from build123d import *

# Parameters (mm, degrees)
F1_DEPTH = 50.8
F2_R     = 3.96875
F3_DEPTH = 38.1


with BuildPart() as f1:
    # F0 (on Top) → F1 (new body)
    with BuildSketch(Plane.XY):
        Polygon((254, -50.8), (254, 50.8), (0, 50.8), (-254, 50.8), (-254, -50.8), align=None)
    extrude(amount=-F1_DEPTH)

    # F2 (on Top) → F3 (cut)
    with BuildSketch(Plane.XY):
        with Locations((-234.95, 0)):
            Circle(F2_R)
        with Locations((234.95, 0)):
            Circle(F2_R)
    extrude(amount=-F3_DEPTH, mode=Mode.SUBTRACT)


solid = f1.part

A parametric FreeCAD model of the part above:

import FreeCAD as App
import Part
import Sketcher

V = App.Vector
Q = App.Units.Quantity

doc = App.newDocument("Part")
body = doc.addObject("PartDesign::Body", "Body")

# Sketch on XY plane
sketch1 = doc.addObject("Sketcher::SketchObject", "Sketch")
body.addObject(sketch1)
sketch1.AttachmentSupport = (doc.XY_Plane, [""])
sketch1.MapMode = "FlatFace"
sketch1.addGeometry(Part.LineSegment(V(254, -51, 0), V(254, 51, 0)), False)
sketch1.addGeometry(Part.LineSegment(V(254, 51, 0), V(-254, 51, 0)), False)
sketch1.addGeometry(Part.LineSegment(V(-254, 51, 0), V(-254, -51, 0)), False)
sketch1.addGeometry(Part.LineSegment(V(-254, -51, 0), V(254, -51, 0)), False)
sketch1.addConstraint(Sketcher.Constraint("Coincident", 0, 2, 1, 1))
sketch1.addConstraint(Sketcher.Constraint("Coincident", 1, 2, 2, 1))
sketch1.addConstraint(Sketcher.Constraint("Coincident", 2, 2, 3, 1))
sketch1.addConstraint(Sketcher.Constraint("Coincident", 3, 2, 0, 1))
sketch1.addConstraint(Sketcher.Constraint("Vertical", 0))
sketch1.addConstraint(Sketcher.Constraint("Horizontal", 1))
sketch1.addConstraint(Sketcher.Constraint("Vertical", 2))
sketch1.addConstraint(Sketcher.Constraint("Horizontal", 3))
sketch1.addConstraint(Sketcher.Constraint("Symmetric", 0, 2, 2, 2, -1, 1))
sketch1.addConstraint(Sketcher.Constraint("DistanceX", 1, 2, 1, 1, Q("20 in")))
sketch1.addConstraint(Sketcher.Constraint("DistanceY", 0, 1, 0, 2, Q("4 in")))
pad1 = doc.addObject("PartDesign::Pad", "Pad")
body.addObject(pad1)
pad1.Profile = sketch1
pad1.Length = Q("2 in")
pad1.Reversed = True

# Sketch on XY plane
sketch2 = doc.addObject("Sketcher::SketchObject", "Sketch001")
body.addObject(sketch2)
sketch2.AttachmentSupport = (doc.XY_Plane, [""])
sketch2.MapMode = "FlatFace"
sketch2.addGeometry(Part.Circle(V(-234.9, 0, 0), V(0, 0, 1), 4), False)
sketch2.addGeometry(Part.Circle(V(234.9, 0, 0), V(0, 0, 1), 4), False)
sketch2.addConstraint(Sketcher.Constraint("Equal", 0, 1))
sketch2.addConstraint(Sketcher.Constraint("Symmetric", 0, 3, 1, 3, -1, 1))
sketch2.addConstraint(Sketcher.Constraint("PointOnObject", 0, 3, -1))
sketch2.addConstraint(Sketcher.Constraint("Diameter", 0, Q("0.3125 in")))
sketch2.addConstraint(Sketcher.Constraint("DistanceX", 0, 3, 1, 3, Q("18.5 in")))
pocket1 = doc.addObject("PartDesign::Pocket", "Pocket")
body.addObject(pocket1)
pocket1.Profile = sketch2
pocket1.Length = Q("1.5 in")

doc.recompute()
